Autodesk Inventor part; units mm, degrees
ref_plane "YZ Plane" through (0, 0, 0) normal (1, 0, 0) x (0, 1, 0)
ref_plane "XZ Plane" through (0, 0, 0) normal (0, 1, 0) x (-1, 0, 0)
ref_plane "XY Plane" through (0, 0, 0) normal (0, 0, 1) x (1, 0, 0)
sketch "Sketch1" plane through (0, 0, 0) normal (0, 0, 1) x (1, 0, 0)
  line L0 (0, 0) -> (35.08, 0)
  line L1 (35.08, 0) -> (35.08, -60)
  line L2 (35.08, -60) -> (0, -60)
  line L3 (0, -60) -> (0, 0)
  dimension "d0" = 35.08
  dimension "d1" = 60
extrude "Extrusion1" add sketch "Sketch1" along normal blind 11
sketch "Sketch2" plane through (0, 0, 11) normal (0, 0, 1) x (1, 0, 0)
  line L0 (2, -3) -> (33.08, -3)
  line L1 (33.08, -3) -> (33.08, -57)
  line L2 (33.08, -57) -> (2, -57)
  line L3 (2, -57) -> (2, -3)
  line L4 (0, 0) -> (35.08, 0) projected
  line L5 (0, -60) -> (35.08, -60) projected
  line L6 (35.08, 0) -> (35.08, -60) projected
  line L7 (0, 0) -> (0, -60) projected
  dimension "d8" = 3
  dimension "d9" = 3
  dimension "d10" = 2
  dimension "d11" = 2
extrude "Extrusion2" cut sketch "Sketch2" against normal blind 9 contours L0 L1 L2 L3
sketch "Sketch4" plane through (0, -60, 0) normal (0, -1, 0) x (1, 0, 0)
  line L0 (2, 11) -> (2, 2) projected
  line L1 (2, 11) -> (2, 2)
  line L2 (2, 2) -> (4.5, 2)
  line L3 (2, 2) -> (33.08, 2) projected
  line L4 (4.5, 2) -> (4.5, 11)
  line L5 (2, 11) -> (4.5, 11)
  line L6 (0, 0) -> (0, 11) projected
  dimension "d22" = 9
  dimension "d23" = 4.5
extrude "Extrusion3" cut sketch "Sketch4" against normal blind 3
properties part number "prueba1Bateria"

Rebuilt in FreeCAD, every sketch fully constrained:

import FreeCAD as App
import Part
import Sketcher

doc = App.newDocument("Part")
params = doc.addObject("Spreadsheet::Sheet", "Params")
for row, (alias, value) in enumerate([
    ("sketch1_height", "60 mm"),
    ("sketch1_width", "35.08 mm"),
    ("pad1_length", "11 mm"),
    ("sketch2_height", "54 mm"),
    ("sketch2_width", "31.08 mm"),
    ("pocket1_length", "9 mm"),
    ("sketch3_height", "9 mm"),
    ("sketch3_width", "2.5 mm"),
    ("pocket2_length", "3 mm"),
], start=1):
    params.set(f"A{row}", alias)
    params.set(f"B{row}", "=" + value)
    params.setAlias(f"B{row}", alias)

body = doc.addObject("PartDesign::Body", "Body")

# Sketch on XY plane
sketch1 = body.newObject("Sketcher::SketchObject", "Sketch")
sketch1.AttachmentSupport = (doc.getObject("XY_Plane"), [""])
sketch1.MapMode = "FlatFace"
sketch1.addGeometry(Part.LineSegment(App.Vector(35, 0, 0), App.Vector(0, 0, 0)), False)
sketch1.addGeometry(Part.LineSegment(App.Vector(0, 0, 0), App.Vector(0, -60, 0)), False)
sketch1.addGeometry(Part.LineSegment(App.Vector(0, -60, 0), App.Vector(35, -60, 0)), False)
sketch1.addGeometry(Part.LineSegment(App.Vector(35, -60, 0), App.Vector(35, 0, 0)), False)
sketch1.addConstraint(Sketcher.Constraint("Coincident", 0, 2, 1, 1))
sketch1.addConstraint(Sketcher.Constraint("Coincident", 1, 2, 2, 1))
sketch1.addConstraint(Sketcher.Constraint("Coincident", 2, 2, 3, 1))
sketch1.addConstraint(Sketcher.Constraint("Coincident", 3, 2, 0, 1))
sketch1.addConstraint(Sketcher.Constraint("Horizontal", 0))
sketch1.addConstraint(Sketcher.Constraint("Vertical", 1))
sketch1.addConstraint(Sketcher.Constraint("Horizontal", 2))
sketch1.addConstraint(Sketcher.Constraint("Vertical", 3))
sketch1.addConstraint(Sketcher.Constraint("Coincident", 0, 2, -1, 1))
sketch1.addConstraint(Sketcher.Constraint("DistanceY", 1, 2, 1, 1, 60.0))
sketch1.addConstraint(Sketcher.Constraint("DistanceX", 0, 2, 0, 1, 35.08))
sketch1.setExpression("Constraints[9]", "Params.sketch1_height")
sketch1.setExpression("Constraints[10]", "Params.sketch1_width")
pad1 = body.newObject("PartDesign::Pad", "Pad")
pad1.Profile = sketch1
pad1.setExpression("Length", "Params.pad1_length")

# Sketch on XY plane
sketch2 = body.newObject("Sketcher::SketchObject", "Sketch001")
sketch2.AttachmentSupport = (doc.getObject("XY_Plane"), [""])
sketch2.MapMode = "FlatFace"
sketch2.AttachmentOffset = App.Placement(App.Vector(0, 0, 11), App.Rotation())
sketch2.addGeometry(Part.LineSegment(App.Vector(33, -3, 0), App.Vector(2, -3, 0)), False)
sketch2.addGeometry(Part.LineSegment(App.Vector(2, -3, 0), App.Vector(2, -57, 0)), False)
sketch2.addGeometry(Part.LineSegment(App.Vector(2, -57, 0), App.Vector(33, -57, 0)), False)
sketch2.addGeometry(Part.LineSegment(App.Vector(33, -57, 0), App.Vector(33, -3, 0)), False)
sketch2.addConstraint(Sketcher.Constraint("Coincident", 0, 2, 1, 1))
sketch2.addConstraint(Sketcher.Constraint("Coincident", 1, 2, 2, 1))
sketch2.addConstraint(Sketcher.Constraint("Coincident", 2, 2, 3, 1))
sketch2.addConstraint(Sketcher.Constraint("Coincident", 3, 2, 0, 1))
sketch2.addConstraint(Sketcher.Constraint("Horizontal", 0))
sketch2.addConstraint(Sketcher.Constraint("Vertical", 1))
sketch2.addConstraint(Sketcher.Constraint("Horizontal", 2))
sketch2.addConstraint(Sketcher.Constraint("Vertical", 3))
sketch2.addConstraint(Sketcher.Constraint("DistanceX", -1, 1, 0, 2, 2.0))
sketch2.addConstraint(Sketcher.Constraint("DistanceY", 0, 2, -1, 1, 3.0))
sketch2.addConstraint(Sketcher.Constraint("DistanceY", 1, 2, 1, 1, 54.0))
sketch2.addConstraint(Sketcher.Constraint("DistanceX", 0, 2, 0, 1, 31.08))
sketch2.setExpression("Constraints[10]", "Params.sketch2_height")
sketch2.setExpression("Constraints[11]", "Params.sketch2_width")
pocket1 = body.newObject("PartDesign::Pocket", "Pocket")
pocket1.Profile = sketch2
pocket1.setExpression("Length", "Params.pocket1_length")

# Sketch on XZ plane
sketch3 = body.newObject("Sketcher::SketchObject", "Sketch002")
sketch3.AttachmentSupport = (doc.getObject("XZ_Plane"), [""])
sketch3.MapMode = "FlatFace"
sketch3.AttachmentOffset = App.Placement(App.Vector(0, 0, 60), App.Rotation())
sketch3.addGeometry(Part.LineSegment(App.Vector(4.5, 11, 0), App.Vector(2, 11, 0)), False)
sketch3.addGeometry(Part.LineSegment(App.Vector(2, 11, 0), App.Vector(2, 2, 0)), False)
sketch3.addGeometry(Part.LineSegment(App.Vector(2, 2, 0), App.Vector(4.5, 2, 0)), False)
sketch3.addGeometry(Part.LineSegment(App.Vector(4.5, 2, 0), App.Vector(4.5, 11, 0)), False)
sketch3.addConstraint(Sketcher.Constraint("Coincident", 0, 2, 1, 1))
sketch3.addConstraint(Sketcher.Constraint("Coincident", 1, 2, 2, 1))
sketch3.addConstraint(Sketcher.Constraint("Coincident", 2, 2, 3, 1))
sketch3.addConstraint(Sketcher.Constraint("Coincident", 3, 2, 0, 1))
sketch3.addConstraint(Sketcher.Constraint("Horizontal", 0))
sketch3.addConstraint(Sketcher.Constraint("Vertical", 1))
sketch3.addConstraint(Sketcher.Constraint("Horizontal", 2))
sketch3.addConstraint(Sketcher.Constraint("Vertical", 3))
sketch3.addConstraint(Sketcher.Constraint("DistanceY", 1, 2, 1, 1, 9.0))
sketch3.addConstraint(Sketcher.Constraint("DistanceX", -1, 1, 2, 2, 4.5))
sketch3.addConstraint(Sketcher.Constraint("DistanceX", 0, 2, 0, 1, 2.5))
sketch3.addConstraint(Sketcher.Constraint("DistanceY", -1, 1, 0, 2, 11.0))
sketch3.setExpression("Constraints[8]", "Params.sketch3_height")
sketch3.setExpression("Constraints[10]", "Params.sketch3_width")
pocket2 = body.newObject("PartDesign::Pocket", "Pocket001")
pocket2.Profile = sketch3
pocket2.setExpression("Length", "Params.pocket2_length")

doc.recompute()
